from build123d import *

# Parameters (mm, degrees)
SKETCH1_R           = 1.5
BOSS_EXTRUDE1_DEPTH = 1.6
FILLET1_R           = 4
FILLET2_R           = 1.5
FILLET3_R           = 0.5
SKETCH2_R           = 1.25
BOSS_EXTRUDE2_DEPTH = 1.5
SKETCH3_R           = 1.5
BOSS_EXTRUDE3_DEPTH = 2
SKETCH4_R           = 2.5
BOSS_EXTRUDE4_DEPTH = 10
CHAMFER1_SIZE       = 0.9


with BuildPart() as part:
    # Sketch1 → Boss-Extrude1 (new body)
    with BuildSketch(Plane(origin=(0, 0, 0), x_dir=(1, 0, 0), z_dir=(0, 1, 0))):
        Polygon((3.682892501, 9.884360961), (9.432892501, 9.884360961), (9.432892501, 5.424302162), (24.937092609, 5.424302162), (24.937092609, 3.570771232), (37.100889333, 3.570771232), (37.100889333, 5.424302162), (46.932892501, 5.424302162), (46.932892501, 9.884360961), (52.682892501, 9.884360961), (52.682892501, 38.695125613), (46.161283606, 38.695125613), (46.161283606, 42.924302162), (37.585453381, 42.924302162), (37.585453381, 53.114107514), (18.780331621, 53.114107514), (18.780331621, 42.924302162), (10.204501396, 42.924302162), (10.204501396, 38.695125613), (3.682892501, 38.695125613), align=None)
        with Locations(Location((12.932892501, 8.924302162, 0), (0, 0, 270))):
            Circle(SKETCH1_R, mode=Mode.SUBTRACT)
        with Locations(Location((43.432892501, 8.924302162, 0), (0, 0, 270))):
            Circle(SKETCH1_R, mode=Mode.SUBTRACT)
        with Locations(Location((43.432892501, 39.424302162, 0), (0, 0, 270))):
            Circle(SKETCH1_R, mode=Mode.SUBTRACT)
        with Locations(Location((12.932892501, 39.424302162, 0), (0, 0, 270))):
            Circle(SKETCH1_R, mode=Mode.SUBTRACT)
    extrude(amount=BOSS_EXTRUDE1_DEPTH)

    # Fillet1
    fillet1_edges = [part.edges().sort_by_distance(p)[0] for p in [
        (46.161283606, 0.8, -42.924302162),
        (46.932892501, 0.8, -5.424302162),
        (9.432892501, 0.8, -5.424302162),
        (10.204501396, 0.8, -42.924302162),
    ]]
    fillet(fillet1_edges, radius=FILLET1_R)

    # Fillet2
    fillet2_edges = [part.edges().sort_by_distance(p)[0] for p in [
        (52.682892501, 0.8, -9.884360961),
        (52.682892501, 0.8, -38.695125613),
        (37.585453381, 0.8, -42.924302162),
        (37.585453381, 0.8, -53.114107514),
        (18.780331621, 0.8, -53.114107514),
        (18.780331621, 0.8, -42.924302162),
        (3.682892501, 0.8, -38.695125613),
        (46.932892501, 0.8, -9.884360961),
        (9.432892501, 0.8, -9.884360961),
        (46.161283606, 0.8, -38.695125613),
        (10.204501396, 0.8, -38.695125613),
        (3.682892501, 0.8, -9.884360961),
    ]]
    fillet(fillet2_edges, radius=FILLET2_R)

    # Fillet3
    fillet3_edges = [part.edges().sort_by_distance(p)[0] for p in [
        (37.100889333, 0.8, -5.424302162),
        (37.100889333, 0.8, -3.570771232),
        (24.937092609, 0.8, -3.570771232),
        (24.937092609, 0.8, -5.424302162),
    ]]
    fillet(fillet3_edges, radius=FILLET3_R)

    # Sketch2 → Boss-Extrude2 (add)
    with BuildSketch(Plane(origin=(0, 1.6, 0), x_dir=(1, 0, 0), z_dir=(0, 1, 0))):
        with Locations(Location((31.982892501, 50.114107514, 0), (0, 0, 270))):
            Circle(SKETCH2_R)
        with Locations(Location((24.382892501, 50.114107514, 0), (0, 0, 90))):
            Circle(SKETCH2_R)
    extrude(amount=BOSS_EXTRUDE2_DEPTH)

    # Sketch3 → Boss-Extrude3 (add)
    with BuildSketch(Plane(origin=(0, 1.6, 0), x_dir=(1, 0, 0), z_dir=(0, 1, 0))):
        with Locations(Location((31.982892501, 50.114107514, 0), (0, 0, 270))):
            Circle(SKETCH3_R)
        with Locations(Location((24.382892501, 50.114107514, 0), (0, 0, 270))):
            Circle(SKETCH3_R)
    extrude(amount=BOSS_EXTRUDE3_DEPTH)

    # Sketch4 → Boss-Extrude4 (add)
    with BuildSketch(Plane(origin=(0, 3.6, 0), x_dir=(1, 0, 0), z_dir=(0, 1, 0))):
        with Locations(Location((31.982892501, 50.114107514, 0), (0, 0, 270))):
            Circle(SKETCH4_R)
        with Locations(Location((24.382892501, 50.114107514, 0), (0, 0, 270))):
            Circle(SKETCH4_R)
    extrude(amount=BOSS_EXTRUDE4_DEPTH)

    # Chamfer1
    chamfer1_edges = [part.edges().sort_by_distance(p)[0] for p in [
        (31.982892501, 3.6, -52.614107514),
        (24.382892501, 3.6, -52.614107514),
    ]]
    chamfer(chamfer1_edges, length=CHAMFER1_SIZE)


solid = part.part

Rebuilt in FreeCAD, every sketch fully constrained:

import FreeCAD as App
import Part
import Sketcher

V = App.Vector
Q = App.Units.Quantity


def edges_at(feature, points):
    """Names of the edges that pass closest to the given points."""
    edges = feature.Shape.Edges
    near = lambda p: min(range(len(edges)), key=lambda i: edges[i].distToShape(Part.Vertex(*p))[0])
    return sorted({f"Edge{near(p) + 1}" for p in points})


def add_polygon(sketch, points):
    """Adds a closed chain of lines whose ends are joined by coincident constraints."""
    first, n = sketch.GeometryCount, len(points)
    for a, b in zip(points, points[1:] + points[:1]):
        sketch.addGeometry(Part.LineSegment(App.Vector(*a, 0), App.Vector(*b, 0)), False)
    for i in range(n):
        sketch.addConstraint(Sketcher.Constraint("Coincident", first + i, 2, first + (i + 1) % n, 1))

doc = App.newDocument("Part")
params = doc.addObject("Spreadsheet::Sheet", "Params")
for row, (alias, value) in enumerate([
    ("sketch1_diameter", "3 mm"),
    ("sketch1_width", "5.75 mm"),
    ("pad1_length", "1.6 mm"),
    ("fillet_radius", "4 mm"),
    ("fillet2_radius", "1.5 mm"),
    ("fillet3_radius", "0.5 mm"),
    ("sketch2_diameter", "2.5 mm"),
    ("pad2_length", "1.5 mm"),
    ("sketch3_diameter", "3 mm"),
    ("pad3_length", "2 mm"),
    ("sketch4_diameter", "5 mm"),
    ("pad4_length", "10 mm"),
    ("chamfer_size", "0.9 mm"),
], start=1):
    params.set(f"A{row}", alias)
    params.set(f"B{row}", "=" + value)
    params.setAlias(f"B{row}", alias)

body = doc.addObject("PartDesign::Body", "Body")

sketch1 = doc.addObject("Sketcher::SketchObject", "Sketch")
body.addObject(sketch1)
sketch1.AttachmentSupport = (doc.XZ_Plane, [""])
sketch1.MapMode = "FlatFace"
add_polygon(sketch1, [(3.7, -9.9), (9.4, -9.9), (9.4, -5.4), (24.9, -5.4), (24.9, -3.6), (37.1, -3.6), (37.1, -5.4), (46.9, -5.4), (46.9, -9.9), (52.7, -9.9), (52.7, -38.7), (46.2, -38.7), (46.2, -42.9), (37.6, -42.9), (37.6, -53.1), (18.8, -53.1), (18.8, -42.9), (10.2, -42.9), (10.2, -38.7), (3.7, -38.7)])
sketch1.addGeometry(Part.Circle(V(12.9, -8.9, 0), V(0, 0, 1), 1.5), False)
sketch1.addGeometry(Part.Circle(V(43.4, -8.9, 0), V(0, 0, 1), 1.5), False)
sketch1.addGeometry(Part.Circle(V(12.9, -39.4, 0), V(0, 0, 1), 1.5), False)
sketch1.addGeometry(Part.Circle(V(43.4, -39.4, 0), V(0, 0, 1), 1.5), False)
sketch1.addConstraint([
    Sketcher.Constraint("Horizontal", 0),
    Sketcher.Constraint("Vertical", 1),
    Sketcher.Constraint("Horizontal", 2),
    Sketcher.Constraint("Vertical", 3),
    Sketcher.Constraint("Horizontal", 4),
    Sketcher.Constraint("Vertical", 5),
    Sketcher.Constraint("Horizontal", 6),
    Sketcher.Constraint("Vertical", 7),
    Sketcher.Constraint("Horizontal", 8),
    Sketcher.Constraint("Vertical", 9),
    Sketcher.Constraint("Horizontal", 10),
    Sketcher.Constraint("Vertical", 11),
    Sketcher.Constraint("Horizontal", 12),
    Sketcher.Constraint("Vertical", 13),
    Sketcher.Constraint("Horizontal", 14),
    Sketcher.Constraint("Vertical", 15),
    Sketcher.Constraint("Horizontal", 16),
    Sketcher.Constraint("Vertical", 17),
    Sketcher.Constraint("Horizontal", 18),
    Sketcher.Constraint("Vertical", 19),
    Sketcher.Constraint("Equal", 20, 21),
    Sketcher.Constraint("Equal", 21, 22),
    Sketcher.Constraint("Equal", 22, 23),
    Sketcher.Constraint("Horizontal", 20, 3, 21, 3),
    Sketcher.Constraint("Horizontal", 22, 3, 23, 3),
    Sketcher.Constraint("Horizontal", 2, 2, 5, 2),
    Sketcher.Constraint("Horizontal", 0, 2, 7, 2),
    Sketcher.Constraint("Horizontal", 12, 2, 15, 2),
    Sketcher.Constraint("Horizontal", 10, 2, 17, 2),
    Sketcher.Constraint("Vertical", 20, 3, 22, 3),
    Sketcher.Constraint("Vertical", 21, 3, 23, 3),
    Sketcher.Constraint("Equal", 0, 8),
    Sketcher.Constraint("Equal", 12, 16),
    Sketcher.Constraint("Equal", 10, 18),
    Sketcher.Constraint("Diameter", 20, Q("3 mm")),
    Sketcher.Constraint("DistanceX", 0, 2, 21, 3, Q("34 mm")),
    Sketcher.Constraint("DistanceY", 22, 3, 1, 2, Q("34 mm")),
    Sketcher.Constraint("DistanceX", 0, 1, 0, 2, Q("5.75 mm")),
    Sketcher.Constraint("DistanceX", 20, 3, 21, 3, Q("30.5 mm")),
    Sketcher.Constraint("DistanceY", 22, 3, 20, 3, Q("30.5 mm")),
    Sketcher.Constraint("DistanceX", 21, 3, 6, 2, Q("3.5 mm")),
    Sketcher.Constraint("DistanceY", 11, 2, 23, 3, Q("3.5 mm")),
    Sketcher.Constraint("DistanceX", 2, 1, 2, 2, Q("15.5042 mm")),
    Sketcher.Constraint("DistanceX", 10, 2, 10, 1, Q("6.521609 mm")),
    Sketcher.Constraint("DistanceX", 12, 2, 12, 1, Q("8.57583 mm")),
    Sketcher.Constraint("DistanceY", 1, 1, 1, 2, Q("4.460059 mm")),
    Sketcher.Constraint("DistanceY", 3, 1, 3, 2, Q("1.853531 mm")),
    Sketcher.Constraint("DistanceX", -1, 1, 16, 2, Q("10.204501 mm")),
    Sketcher.Constraint("DistanceX", 4, 1, 4, 2, Q("12.163797 mm")),
    Sketcher.Constraint("DistanceY", 9, 2, 9, 1, Q("28.810765 mm")),
    Sketcher.Constraint("DistanceY", 13, 2, 13, 1, Q("10.189805 mm")),
    Sketcher.Constraint("DistanceY", 0, 2, -1, 1, Q("9.884361 mm")),
])
sketch1.setExpression("Constraints[54]", "Params.sketch1_diameter")
sketch1.setExpression("Constraints[57]", "Params.sketch1_width")
pad1 = doc.addObject("PartDesign::Pad", "Pad")
body.addObject(pad1)
pad1.Profile = sketch1
pad1.setExpression("Length", "Params.pad1_length")
pad1.Reversed = True
doc.recompute()

fillet = doc.addObject("PartDesign::Fillet", "Fillet")
body.addObject(fillet)
fillet.Base = (pad1, edges_at(pad1, [
    (46.161, 0.8, -42.924),
    (46.933, 0.8, -5.424),
    (9.433, 0.8, -5.424),
    (10.205, 0.8, -42.924),
]))
fillet.setExpression("Radius", "Params.fillet_radius")
doc.recompute()

fillet2 = doc.addObject("PartDesign::Fillet", "Fillet001")
body.addObject(fillet2)
fillet2.Base = (fillet, edges_at(fillet, [
    (52.683, 0.8, -9.884),
    (52.683, 0.8, -38.695),
    (37.585, 0.8, -42.924),
    (37.585, 0.8, -53.114),
    (18.78, 0.8, -53.114),
    (18.78, 0.8, -42.924),
    (3.683, 0.8, -38.695),
    (46.933, 0.8, -9.884),
    (9.433, 0.8, -9.884),
    (46.161, 0.8, -38.695),
    (10.205, 0.8, -38.695),
    (3.683, 0.8, -9.884),
]))
fillet2.setExpression("Radius", "Params.fillet2_radius")
doc.recompute()

fillet3 = doc.addObject("PartDesign::Fillet", "Fillet002")
body.addObject(fillet3)
fillet3.Base = (fillet2, edges_at(fillet2, [
    (37.101, 0.8, -5.424),
    (37.101, 0.8, -3.571),
    (24.937, 0.8, -3.571),
    (24.937, 0.8, -5.424),
]))
fillet3.setExpression("Radius", "Params.fillet3_radius")

sketch2 = doc.addObject("Sketcher::SketchObject", "Sketch001")
body.addObject(sketch2)
sketch2.AttachmentSupport = (doc.XZ_Plane, [""])
sketch2.MapMode = "FlatFace"
sketch2.AttachmentOffset = App.Placement(V(0, 0, -1.6), App.Rotation())
sketch2.addGeometry([
    Part.Circle(V(32, -50.1, 0), V(0, 0, 1), 1.2),
    Part.Circle(V(24.4, -50.1, 0), V(0, 0, 1), 1.2),
], False)
sketch2.addConstraint([
    Sketcher.Constraint("Equal", 0, 1),
    Sketcher.Constraint("Horizontal", 0, 3, 1, 3),
    Sketcher.Constraint("Diameter", 0, Q("2.5 mm")),
    Sketcher.Constraint("DistanceX", 1, 3, 0, 3, Q("7.6 mm")),
    Sketcher.Constraint("DistanceX", -1, 1, 0, 3, Q("31.982893 mm")),
    Sketcher.Constraint("DistanceY", 0, 3, -1, 1, Q("50.114108 mm")),
])
sketch2.setExpression("Constraints[2]", "Params.sketch2_diameter")
pad2 = doc.addObject("PartDesign::Pad", "Pad001")
body.addObject(pad2)
pad2.Profile = sketch2
pad2.setExpression("Length", "Params.pad2_length")
pad2.Reversed = True

sketch3 = doc.addObject("Sketcher::SketchObject", "Sketch002")
body.addObject(sketch3)
sketch3.AttachmentSupport = (doc.XZ_Plane, [""])
sketch3.MapMode = "FlatFace"
sketch3.AttachmentOffset = App.Placement(V(0, 0, -1.6), App.Rotation())
sketch3.addGeometry([
    Part.Circle(V(32, -50.1, 0), V(0, 0, 1), 1.5),
    Part.Circle(V(24.4, -50.1, 0), V(0, 0, 1), 1.5),
], False)
sketch3.addConstraint([
    Sketcher.Constraint("Equal", 0, 1),
    Sketcher.Constraint("Horizontal", 0, 3, 1, 3),
    Sketcher.Constraint("Diameter", 0, Q("3 mm")),
    Sketcher.Constraint("DistanceX", 1, 3, 0, 3, Q("7.6 mm")),
    Sketcher.Constraint("DistanceX", -1, 1, 0, 3, Q("31.982893 mm")),
    Sketcher.Constraint("DistanceY", 0, 3, -1, 1, Q("50.114108 mm")),
])
sketch3.setExpression("Constraints[2]", "Params.sketch3_diameter")
pad3 = doc.addObject("PartDesign::Pad", "Pad002")
body.addObject(pad3)
pad3.Profile = sketch3
pad3.setExpression("Length", "Params.pad3_length")
pad3.Reversed = True

sketch4 = doc.addObject("Sketcher::SketchObject", "Sketch003")
body.addObject(sketch4)
sketch4.AttachmentSupport = (doc.XZ_Plane, [""])
sketch4.MapMode = "FlatFace"
sketch4.AttachmentOffset = App.Placement(V(0, 0, -3.6), App.Rotation())
sketch4.addGeometry([
    Part.Circle(V(32, -50.1, 0), V(0, 0, 1), 2.5),
    Part.Circle(V(24.4, -50.1, 0), V(0, 0, 1), 2.5),
], False)
sketch4.addConstraint([
    Sketcher.Constraint("Equal", 0, 1),
    Sketcher.Constraint("Horizontal", 0, 3, 1, 3),
    Sketcher.Constraint("Diameter", 0, Q("5 mm")),
    Sketcher.Constraint("DistanceX", 1, 3, 0, 3, Q("7.6 mm")),
    Sketcher.Constraint("DistanceX", -1, 1, 0, 3, Q("31.982893 mm")),
    Sketcher.Constraint("DistanceY", 0, 3, -1, 1, Q("50.114108 mm")),
])
sketch4.setExpression("Constraints[2]", "Params.sketch4_diameter")
pad4 = doc.addObject("PartDesign::Pad", "Pad003")
body.addObject(pad4)
pad4.Profile = sketch4
pad4.setExpression("Length", "Params.pad4_length")
pad4.Reversed = True
doc.recompute()

chamfer = doc.addObject("PartDesign::Chamfer", "Chamfer")
body.addObject(chamfer)
chamfer.Base = (pad4, edges_at(pad4, [(31.983, 3.6, -52.614), (24.383, 3.6, -52.614)]))
chamfer.setExpression("Size", "Params.chamfer_size")

doc.recompute()
